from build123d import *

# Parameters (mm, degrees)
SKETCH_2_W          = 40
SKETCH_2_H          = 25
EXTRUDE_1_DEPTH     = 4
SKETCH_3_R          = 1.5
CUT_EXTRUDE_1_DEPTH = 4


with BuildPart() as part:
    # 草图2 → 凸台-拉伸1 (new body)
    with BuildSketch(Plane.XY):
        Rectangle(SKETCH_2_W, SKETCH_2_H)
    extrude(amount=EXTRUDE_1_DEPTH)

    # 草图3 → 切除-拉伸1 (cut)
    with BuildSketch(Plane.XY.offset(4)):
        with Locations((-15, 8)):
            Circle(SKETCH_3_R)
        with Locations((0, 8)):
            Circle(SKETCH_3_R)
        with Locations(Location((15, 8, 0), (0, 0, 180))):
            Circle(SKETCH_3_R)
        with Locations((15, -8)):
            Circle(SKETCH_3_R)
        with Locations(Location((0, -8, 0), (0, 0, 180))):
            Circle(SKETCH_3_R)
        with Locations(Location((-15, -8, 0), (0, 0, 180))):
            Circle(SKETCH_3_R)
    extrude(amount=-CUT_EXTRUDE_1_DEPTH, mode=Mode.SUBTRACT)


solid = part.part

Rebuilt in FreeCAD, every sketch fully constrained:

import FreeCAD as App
import Part
import Sketcher
Q = App.Units.Quantity

doc = App.newDocument("Part")
body = doc.addObject("PartDesign::Body", "Body")

# Sketch on XY plane
sketch1 = body.newObject("Sketcher::SketchObject", "Sketch")
sketch1.AttachmentSupport = (doc.getObject("XY_Plane"), [""])
sketch1.MapMode = "FlatFace"
sketch1.addGeometry([
    Part.LineSegment(App.Vector(-20, 12, 0), App.Vector(-20, -12, 0)),
    Part.LineSegment(App.Vector(-20, -12, 0), App.Vector(20, -12, 0)),
    Part.LineSegment(App.Vector(20, -12, 0), App.Vector(20, 12, 0)),
    Part.LineSegment(App.Vector(20, 12, 0), App.Vector(-20, 12, 0)),
], False)
sketch1.addConstraint([
    Sketcher.Constraint("Coincident", 0, 2, 1, 1),
    Sketcher.Constraint("Coincident", 1, 2, 2, 1),
    Sketcher.Constraint("Coincident", 2, 2, 3, 1),
    Sketcher.Constraint("Coincident", 3, 2, 0, 1),
    Sketcher.Constraint("Vertical", 0),
    Sketcher.Constraint("Horizontal", 1),
    Sketcher.Constraint("Vertical", 2),
    Sketcher.Constraint("Horizontal", 3),
    Sketcher.Constraint("Symmetric", 0, 2, 2, 2, -1, 1),
    Sketcher.Constraint("DistanceX", 1, 1, 1, 2, Q("40 mm")),
    Sketcher.Constraint("DistanceY", 0, 2, 0, 1, Q("25 mm")),
])
pad1 = body.newObject("PartDesign::Pad", "Pad")
pad1.Profile = sketch1
pad1.Length = 4

# Sketch on XY plane
sketch2 = body.newObject("Sketcher::SketchObject", "Sketch001")
sketch2.AttachmentSupport = (doc.getObject("XY_Plane"), [""])
sketch2.MapMode = "FlatFace"
sketch2.AttachmentOffset = App.Placement(App.Vector(0, 0, 4), App.Rotation())
sketch2.addGeometry([
    Part.Circle(App.Vector(-15, 8, 0), App.Vector(0, 0, 1), 1.5),  # 0
    Part.Circle(App.Vector(0, 8, 0), App.Vector(0, 0, 1), 1.5),  # 1
    Part.Circle(App.Vector(15, 8, 0), App.Vector(0, 0, 1), 1.5),  # 2
    Part.Circle(App.Vector(15, -8, 0), App.Vector(0, 0, 1), 1.5),  # 3
    Part.Circle(App.Vector(0, -8, 0), App.Vector(0, 0, 1), 1.5),  # 4
    Part.Circle(App.Vector(-15, -8, 0), App.Vector(0, 0, 1), 1.5),  # 5
], False)
sketch2.addConstraint([
    Sketcher.Constraint("Equal", 0, 1),
    Sketcher.Constraint("Equal", 1, 2),
    Sketcher.Constraint("Equal", 2, 3),
    Sketcher.Constraint("Equal", 3, 4),
    Sketcher.Constraint("Equal", 4, 5),
    Sketcher.Constraint("Symmetric", 0, 3, 3, 3, -1, 1),
    Sketcher.Constraint("Symmetric", 1, 3, 4, 3, -1, 1),
    Sketcher.Constraint("Symmetric", 2, 3, 5, 3, -1, 1),
    Sketcher.Constraint("Symmetric", 0, 3, 2, 3, -2),
    Sketcher.Constraint("PointOnObject", 1, 3, -2),
    Sketcher.Constraint("Horizontal", 0, 3, 1, 3),
    Sketcher.Constraint("Diameter", 0, Q("3 mm")),
    Sketcher.Constraint("DistanceX", 0, 3, -1, 1, Q("15 mm")),
    Sketcher.Constraint("DistanceY", -1, 1, 0, 3, Q("8 mm")),
])
pocket1 = body.newObject("PartDesign::Pocket", "Pocket")
pocket1.Profile = sketch2
pocket1.Length = 4

doc.recompute()
